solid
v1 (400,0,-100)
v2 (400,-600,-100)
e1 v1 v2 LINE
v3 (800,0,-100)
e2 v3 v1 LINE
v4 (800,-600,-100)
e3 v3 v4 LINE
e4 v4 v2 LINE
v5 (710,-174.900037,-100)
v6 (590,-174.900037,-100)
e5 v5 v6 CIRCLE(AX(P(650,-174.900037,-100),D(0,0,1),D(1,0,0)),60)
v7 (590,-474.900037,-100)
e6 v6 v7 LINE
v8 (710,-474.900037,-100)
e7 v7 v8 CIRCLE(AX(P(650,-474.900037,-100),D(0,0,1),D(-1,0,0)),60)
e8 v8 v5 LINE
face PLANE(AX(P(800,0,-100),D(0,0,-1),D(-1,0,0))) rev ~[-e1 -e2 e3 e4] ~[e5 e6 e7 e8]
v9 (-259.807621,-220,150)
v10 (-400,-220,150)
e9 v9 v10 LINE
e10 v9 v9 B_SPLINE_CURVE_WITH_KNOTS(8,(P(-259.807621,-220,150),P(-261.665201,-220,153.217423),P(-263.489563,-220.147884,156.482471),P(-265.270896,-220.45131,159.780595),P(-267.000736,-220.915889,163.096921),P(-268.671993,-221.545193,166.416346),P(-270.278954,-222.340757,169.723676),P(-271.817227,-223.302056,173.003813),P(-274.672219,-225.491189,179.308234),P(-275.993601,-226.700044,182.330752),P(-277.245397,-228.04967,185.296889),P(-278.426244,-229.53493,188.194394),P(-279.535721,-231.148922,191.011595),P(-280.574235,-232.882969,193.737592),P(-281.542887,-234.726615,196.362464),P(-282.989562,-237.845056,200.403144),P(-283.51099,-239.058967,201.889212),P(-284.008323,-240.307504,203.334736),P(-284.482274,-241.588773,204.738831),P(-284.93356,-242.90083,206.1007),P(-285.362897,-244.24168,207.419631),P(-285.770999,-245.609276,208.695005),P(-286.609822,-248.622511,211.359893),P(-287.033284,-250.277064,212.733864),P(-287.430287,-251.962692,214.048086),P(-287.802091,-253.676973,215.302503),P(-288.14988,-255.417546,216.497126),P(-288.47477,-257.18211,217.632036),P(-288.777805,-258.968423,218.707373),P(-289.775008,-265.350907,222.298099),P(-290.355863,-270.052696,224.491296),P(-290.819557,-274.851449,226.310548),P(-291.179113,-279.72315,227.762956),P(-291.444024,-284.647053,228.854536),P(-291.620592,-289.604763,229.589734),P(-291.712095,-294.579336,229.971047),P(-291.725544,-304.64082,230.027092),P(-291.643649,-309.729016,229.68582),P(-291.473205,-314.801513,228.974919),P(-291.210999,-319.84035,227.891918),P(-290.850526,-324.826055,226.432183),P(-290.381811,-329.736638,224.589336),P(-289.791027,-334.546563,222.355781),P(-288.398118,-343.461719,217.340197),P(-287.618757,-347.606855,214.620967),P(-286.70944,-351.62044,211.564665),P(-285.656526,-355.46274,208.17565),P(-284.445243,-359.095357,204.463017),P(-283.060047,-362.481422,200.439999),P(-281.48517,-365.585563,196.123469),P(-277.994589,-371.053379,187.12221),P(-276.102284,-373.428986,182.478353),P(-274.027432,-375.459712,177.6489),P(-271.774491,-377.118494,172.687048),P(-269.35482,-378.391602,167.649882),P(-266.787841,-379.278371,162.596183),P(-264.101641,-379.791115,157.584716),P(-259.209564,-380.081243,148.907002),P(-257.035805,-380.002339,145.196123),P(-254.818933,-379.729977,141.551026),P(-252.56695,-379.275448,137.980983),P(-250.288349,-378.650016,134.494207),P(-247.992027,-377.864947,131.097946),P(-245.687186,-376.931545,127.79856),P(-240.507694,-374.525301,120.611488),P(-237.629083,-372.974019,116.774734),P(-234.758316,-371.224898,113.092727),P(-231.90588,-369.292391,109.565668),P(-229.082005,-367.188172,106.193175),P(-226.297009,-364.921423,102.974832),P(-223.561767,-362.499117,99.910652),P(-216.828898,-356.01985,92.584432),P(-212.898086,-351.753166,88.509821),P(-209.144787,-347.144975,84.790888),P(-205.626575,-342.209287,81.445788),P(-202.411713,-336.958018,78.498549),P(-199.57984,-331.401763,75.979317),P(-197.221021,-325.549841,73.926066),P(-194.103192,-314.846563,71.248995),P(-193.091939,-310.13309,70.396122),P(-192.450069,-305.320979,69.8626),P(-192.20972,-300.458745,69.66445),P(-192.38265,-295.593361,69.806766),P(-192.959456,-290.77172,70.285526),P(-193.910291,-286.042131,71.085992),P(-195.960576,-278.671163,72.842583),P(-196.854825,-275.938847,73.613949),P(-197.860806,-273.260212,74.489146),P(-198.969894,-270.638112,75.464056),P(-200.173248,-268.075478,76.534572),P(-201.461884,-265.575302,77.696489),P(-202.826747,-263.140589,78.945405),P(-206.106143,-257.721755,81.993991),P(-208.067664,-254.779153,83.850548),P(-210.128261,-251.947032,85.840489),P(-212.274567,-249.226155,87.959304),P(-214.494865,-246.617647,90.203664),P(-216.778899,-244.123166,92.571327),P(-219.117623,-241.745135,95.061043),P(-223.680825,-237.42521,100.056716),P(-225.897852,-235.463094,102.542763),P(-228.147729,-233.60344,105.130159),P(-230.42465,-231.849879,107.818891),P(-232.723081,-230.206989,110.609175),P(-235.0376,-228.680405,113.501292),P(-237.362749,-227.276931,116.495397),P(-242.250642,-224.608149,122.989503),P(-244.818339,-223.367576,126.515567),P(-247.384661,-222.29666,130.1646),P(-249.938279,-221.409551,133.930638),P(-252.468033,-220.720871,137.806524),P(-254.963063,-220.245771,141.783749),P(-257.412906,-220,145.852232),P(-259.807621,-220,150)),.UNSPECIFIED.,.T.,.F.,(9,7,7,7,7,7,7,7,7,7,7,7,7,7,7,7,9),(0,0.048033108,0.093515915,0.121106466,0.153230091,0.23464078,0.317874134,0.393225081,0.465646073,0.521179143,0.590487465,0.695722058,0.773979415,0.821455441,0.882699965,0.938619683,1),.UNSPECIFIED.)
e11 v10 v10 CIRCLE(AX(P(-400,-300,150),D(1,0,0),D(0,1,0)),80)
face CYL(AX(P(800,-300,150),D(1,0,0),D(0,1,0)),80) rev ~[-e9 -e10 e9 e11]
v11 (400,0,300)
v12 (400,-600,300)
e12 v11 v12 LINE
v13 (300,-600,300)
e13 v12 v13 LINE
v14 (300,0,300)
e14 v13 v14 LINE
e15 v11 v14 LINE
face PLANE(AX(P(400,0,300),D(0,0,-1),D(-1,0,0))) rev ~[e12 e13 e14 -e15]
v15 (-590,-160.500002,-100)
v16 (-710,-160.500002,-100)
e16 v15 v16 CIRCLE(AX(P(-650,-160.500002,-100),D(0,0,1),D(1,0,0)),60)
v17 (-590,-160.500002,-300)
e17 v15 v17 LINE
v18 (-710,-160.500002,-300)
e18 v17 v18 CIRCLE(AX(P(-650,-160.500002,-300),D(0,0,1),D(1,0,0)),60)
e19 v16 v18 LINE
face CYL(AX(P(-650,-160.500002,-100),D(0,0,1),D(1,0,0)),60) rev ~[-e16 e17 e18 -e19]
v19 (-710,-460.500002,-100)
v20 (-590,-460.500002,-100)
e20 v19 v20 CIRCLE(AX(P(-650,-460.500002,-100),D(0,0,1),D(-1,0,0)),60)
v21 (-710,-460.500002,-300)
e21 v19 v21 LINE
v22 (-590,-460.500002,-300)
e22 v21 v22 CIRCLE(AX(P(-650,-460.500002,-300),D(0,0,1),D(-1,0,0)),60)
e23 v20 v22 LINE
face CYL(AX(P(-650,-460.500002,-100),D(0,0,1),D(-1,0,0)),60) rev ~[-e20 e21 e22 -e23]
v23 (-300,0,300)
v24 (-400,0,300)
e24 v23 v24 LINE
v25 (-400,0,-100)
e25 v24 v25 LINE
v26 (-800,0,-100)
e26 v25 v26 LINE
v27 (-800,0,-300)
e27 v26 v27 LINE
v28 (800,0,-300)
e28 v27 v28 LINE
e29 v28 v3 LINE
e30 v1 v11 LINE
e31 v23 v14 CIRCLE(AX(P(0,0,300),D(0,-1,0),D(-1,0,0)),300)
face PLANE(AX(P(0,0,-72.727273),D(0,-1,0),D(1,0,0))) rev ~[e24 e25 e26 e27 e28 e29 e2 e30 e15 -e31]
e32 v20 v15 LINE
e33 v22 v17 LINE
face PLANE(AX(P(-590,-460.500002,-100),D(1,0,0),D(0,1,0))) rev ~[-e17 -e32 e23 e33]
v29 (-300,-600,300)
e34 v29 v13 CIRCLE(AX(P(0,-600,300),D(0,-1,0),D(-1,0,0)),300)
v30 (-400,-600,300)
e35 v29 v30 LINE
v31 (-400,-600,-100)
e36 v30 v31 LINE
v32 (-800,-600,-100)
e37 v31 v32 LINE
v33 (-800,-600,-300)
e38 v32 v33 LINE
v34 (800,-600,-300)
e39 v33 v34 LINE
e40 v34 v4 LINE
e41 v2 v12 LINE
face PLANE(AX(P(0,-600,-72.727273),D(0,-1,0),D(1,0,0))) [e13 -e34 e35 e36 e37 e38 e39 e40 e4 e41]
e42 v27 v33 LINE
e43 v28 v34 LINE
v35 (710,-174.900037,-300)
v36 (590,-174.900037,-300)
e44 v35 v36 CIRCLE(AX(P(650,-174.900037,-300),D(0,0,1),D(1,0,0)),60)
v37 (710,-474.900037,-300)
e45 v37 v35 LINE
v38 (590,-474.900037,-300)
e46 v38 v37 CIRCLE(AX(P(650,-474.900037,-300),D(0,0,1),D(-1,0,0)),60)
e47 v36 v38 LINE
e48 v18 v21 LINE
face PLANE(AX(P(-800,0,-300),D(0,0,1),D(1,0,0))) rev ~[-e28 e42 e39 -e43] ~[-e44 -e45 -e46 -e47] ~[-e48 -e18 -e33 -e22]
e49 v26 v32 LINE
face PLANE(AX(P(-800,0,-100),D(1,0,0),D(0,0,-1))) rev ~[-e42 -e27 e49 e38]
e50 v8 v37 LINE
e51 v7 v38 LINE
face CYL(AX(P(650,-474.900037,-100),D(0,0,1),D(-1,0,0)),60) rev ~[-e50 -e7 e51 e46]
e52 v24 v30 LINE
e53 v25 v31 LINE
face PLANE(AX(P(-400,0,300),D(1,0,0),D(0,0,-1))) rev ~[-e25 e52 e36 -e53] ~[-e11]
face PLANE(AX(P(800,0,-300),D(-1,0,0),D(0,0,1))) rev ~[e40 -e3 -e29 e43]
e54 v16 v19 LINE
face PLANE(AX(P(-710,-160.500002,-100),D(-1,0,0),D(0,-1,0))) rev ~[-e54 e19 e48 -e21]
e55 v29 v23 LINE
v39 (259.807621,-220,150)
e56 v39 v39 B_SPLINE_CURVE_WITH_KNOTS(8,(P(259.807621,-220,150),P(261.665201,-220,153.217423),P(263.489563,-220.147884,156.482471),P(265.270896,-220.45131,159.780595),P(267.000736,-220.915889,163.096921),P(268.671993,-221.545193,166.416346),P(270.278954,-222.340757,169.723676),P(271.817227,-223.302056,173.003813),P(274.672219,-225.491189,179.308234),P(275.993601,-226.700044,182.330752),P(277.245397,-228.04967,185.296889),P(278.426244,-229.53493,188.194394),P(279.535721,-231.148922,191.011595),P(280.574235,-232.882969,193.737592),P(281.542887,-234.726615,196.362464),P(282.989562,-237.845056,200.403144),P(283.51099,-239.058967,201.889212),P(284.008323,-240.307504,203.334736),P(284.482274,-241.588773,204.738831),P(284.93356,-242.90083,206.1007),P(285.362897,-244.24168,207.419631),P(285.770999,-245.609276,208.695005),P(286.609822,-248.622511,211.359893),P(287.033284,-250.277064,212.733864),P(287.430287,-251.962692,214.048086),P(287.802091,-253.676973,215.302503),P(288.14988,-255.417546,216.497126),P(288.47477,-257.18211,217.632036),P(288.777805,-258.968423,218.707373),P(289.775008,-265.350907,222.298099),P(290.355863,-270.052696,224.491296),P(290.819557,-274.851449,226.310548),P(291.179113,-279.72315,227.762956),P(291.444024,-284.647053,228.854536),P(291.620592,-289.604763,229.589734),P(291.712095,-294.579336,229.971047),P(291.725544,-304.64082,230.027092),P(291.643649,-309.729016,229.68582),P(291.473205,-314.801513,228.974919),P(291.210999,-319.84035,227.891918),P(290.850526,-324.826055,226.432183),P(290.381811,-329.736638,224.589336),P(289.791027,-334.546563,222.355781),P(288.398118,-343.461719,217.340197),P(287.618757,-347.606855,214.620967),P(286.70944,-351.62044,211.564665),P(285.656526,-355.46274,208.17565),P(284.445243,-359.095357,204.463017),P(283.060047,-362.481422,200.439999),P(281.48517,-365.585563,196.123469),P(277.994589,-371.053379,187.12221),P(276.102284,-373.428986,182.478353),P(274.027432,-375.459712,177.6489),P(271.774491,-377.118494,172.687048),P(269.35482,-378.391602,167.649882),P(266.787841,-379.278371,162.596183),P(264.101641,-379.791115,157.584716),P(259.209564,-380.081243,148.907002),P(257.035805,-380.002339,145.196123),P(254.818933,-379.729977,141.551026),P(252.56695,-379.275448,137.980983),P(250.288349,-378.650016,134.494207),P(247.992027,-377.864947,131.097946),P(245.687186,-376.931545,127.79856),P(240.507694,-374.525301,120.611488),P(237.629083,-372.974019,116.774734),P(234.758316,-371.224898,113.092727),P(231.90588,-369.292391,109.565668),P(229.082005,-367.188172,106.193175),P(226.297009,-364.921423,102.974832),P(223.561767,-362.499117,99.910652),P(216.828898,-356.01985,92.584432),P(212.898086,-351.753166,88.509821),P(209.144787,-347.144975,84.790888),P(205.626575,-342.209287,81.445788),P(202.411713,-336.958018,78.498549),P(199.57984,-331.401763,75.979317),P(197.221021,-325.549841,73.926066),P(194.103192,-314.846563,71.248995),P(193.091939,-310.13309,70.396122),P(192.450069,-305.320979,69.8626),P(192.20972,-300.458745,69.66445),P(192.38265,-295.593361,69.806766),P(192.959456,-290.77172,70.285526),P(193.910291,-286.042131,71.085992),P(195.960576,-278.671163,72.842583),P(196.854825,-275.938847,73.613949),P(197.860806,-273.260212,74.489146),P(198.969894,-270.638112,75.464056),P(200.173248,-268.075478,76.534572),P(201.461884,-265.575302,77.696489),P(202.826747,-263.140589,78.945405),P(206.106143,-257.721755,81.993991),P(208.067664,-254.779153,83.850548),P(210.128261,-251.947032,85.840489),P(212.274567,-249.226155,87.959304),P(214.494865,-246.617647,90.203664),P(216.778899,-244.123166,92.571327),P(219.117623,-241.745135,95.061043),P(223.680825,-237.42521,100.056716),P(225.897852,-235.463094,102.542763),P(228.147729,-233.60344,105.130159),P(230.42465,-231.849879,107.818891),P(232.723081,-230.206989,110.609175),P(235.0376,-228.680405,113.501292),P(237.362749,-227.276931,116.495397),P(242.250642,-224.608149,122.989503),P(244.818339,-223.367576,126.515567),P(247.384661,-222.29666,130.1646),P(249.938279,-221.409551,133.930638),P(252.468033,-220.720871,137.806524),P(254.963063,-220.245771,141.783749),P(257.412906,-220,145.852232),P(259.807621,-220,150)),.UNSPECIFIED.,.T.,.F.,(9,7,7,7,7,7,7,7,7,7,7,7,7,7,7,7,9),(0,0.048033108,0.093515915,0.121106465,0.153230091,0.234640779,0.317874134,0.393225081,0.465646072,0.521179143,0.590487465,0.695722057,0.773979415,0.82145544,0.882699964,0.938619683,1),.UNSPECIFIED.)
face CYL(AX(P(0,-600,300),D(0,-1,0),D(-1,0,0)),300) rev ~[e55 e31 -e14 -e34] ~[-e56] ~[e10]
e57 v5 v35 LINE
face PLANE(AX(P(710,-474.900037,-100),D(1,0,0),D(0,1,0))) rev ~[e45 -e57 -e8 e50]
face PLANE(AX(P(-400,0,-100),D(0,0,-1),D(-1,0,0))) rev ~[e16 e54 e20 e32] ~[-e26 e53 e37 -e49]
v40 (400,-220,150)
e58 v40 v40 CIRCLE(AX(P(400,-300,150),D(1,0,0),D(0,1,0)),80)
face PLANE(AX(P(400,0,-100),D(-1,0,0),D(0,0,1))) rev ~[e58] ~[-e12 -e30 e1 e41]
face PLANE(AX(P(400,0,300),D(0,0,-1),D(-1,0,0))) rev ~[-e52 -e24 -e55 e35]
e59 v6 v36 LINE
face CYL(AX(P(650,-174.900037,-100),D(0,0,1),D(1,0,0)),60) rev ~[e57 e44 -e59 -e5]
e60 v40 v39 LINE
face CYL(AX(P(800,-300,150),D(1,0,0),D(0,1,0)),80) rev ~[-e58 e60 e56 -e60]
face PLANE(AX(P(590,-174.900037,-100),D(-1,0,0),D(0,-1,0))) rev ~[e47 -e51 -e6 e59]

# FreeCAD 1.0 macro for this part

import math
import FreeCAD as App
import Part
import Sketcher


def add_polygon(sketch, points):
    """Adds a closed chain of lines whose ends are joined by coincident constraints."""
    first, n = sketch.GeometryCount, len(points)
    for a, b in zip(points, points[1:] + points[:1]):
        sketch.addGeometry(Part.LineSegment(App.Vector(*a, 0), App.Vector(*b, 0)), False)
    for i in range(n):
        sketch.addConstraint(Sketcher.Constraint("Coincident", first + i, 2, first + (i + 1) % n, 1))

doc = App.newDocument("Part")
params = doc.addObject("Spreadsheet::Sheet", "Params")
for row, (alias, value) in enumerate([
    ("sketch1_width", "1600 mm"),
    ("sketch1_width2", "400 mm"),
    ("sketch1_height", "200 mm"),
    ("pad1_length", "600 mm"),
    ("sketch2_radius", "300 mm"),
    ("sketch3_diameter", "160 mm"),
    ("sketch4_radius", "60 mm"),
    ("sketch4_height", "300 mm"),
], start=1):
    params.set(f"A{row}", alias)
    params.set(f"B{row}", "=" + value)
    params.setAlias(f"B{row}", alias)

body = doc.addObject("PartDesign::Body", "Body")

# Sketch on XZ plane
sketch1 = doc.addObject("Sketcher::SketchObject", "Sketch")
body.addObject(sketch1)
sketch1.AttachmentSupport = (doc.XZ_Plane, [""])
sketch1.MapMode = "FlatFace"
add_polygon(sketch1, [(-800, -100), (-800, -300), (800, -300), (800, -100), (400, -100), (400, 300), (-400, 300), (-400, -100)])  # lines 0-7
sketch1.addConstraint([
    Sketcher.Constraint("Vertical", 0),
    Sketcher.Constraint("Horizontal", 1),
    Sketcher.Constraint("Vertical", 2),
    Sketcher.Constraint("Horizontal", 3),
    Sketcher.Constraint("Vertical", 4),
    Sketcher.Constraint("Horizontal", 5),
    Sketcher.Constraint("Vertical", 6),
    Sketcher.Constraint("Horizontal", 7),
    Sketcher.Constraint("Symmetric", 3, 2, 6, 2, -2),
    Sketcher.Constraint("Equal", 3, 7),
    Sketcher.Constraint("Equal", 7, 4),
    Sketcher.Constraint("DistanceX", 1, 1, 1, 2, 1600.0),
    Sketcher.Constraint("DistanceX", 3, 2, 3, 1, 400.0),
    Sketcher.Constraint("DistanceY", 0, 2, 0, 1, 200.0),
    Sketcher.Constraint("DistanceY", 0, 2, -1, 1, 300.0),
])
sketch1.setExpression("Constraints[19]", "Params.sketch1_width")
sketch1.setExpression("Constraints[20]", "Params.sketch1_width2")
sketch1.setExpression("Constraints[21]", "Params.sketch1_height")
pad1 = doc.addObject("PartDesign::Pad", "Pad")
body.addObject(pad1)
pad1.Profile = sketch1
pad1.setExpression("Length", "Params.pad1_length")

# Sketch on XZ plane
sketch2 = doc.addObject("Sketcher::SketchObject", "Sketch001")
body.addObject(sketch2)
sketch2.AttachmentSupport = (doc.XZ_Plane, [""])
sketch2.MapMode = "FlatFace"
sketch2.AttachmentOffset = App.Placement(App.Vector(0, 0, 600), App.Rotation())
sketch2.addGeometry([
    Part.LineSegment(App.Vector(300, 300, 0), App.Vector(-300, 300, 0)),
    Part.ArcOfCircle(Part.Circle(App.Vector(0, 300, 0), App.Vector(0, 0, 1), 300), math.radians(180), math.radians(360)),
], False)
sketch2.addConstraint([
    Sketcher.Constraint("Coincident", 0, 1, 1, 2),
    Sketcher.Constraint("Coincident", 1, 1, 0, 2),
    Sketcher.Constraint("Horizontal", 0),
    Sketcher.Constraint("PointOnObject", 1, 3, -2),
    Sketcher.Constraint("Horizontal", 1, 3, 0, 1),
    Sketcher.Constraint("Radius", 1, 300.0),
    Sketcher.Constraint("DistanceY", -1, 1, 1, 3, 300.0),
])
sketch2.setExpression("Constraints[5]", "Params.sketch2_radius")
pocket1 = doc.addObject("PartDesign::Pocket", "Pocket")
body.addObject(pocket1)
pocket1.Profile = sketch2
pocket1.Type = "ThroughAll"

# Sketch on YZ plane
sketch3 = doc.addObject("Sketcher::SketchObject", "Sketch002")
body.addObject(sketch3)
sketch3.AttachmentSupport = (doc.YZ_Plane, [""])
sketch3.MapMode = "FlatFace"
sketch3.AttachmentOffset = App.Placement(App.Vector(0, 0, 800), App.Rotation())
sketch3.addGeometry(Part.Circle(App.Vector(-300, 150, 0), App.Vector(0, 0, 1), 80), False)
sketch3.addConstraint([
    Sketcher.Constraint("Diameter", 0, 160.0),
    Sketcher.Constraint("DistanceX", 0, 3, -1, 1, 300.0),
    Sketcher.Constraint("DistanceY", -1, 1, 0, 3, 150.0),
])
sketch3.setExpression("Constraints[0]", "Params.sketch3_diameter")
pocket2 = doc.addObject("PartDesign::Pocket", "Pocket001")
body.addObject(pocket2)
pocket2.Profile = sketch3
pocket2.Type = "ThroughAll"

# Sketch on XY plane
sketch4 = doc.addObject("Sketcher::SketchObject", "Sketch003")
body.addObject(sketch4)
sketch4.AttachmentSupport = (doc.XY_Plane, [""])
sketch4.MapMode = "FlatFace"
sketch4.AttachmentOffset = App.Placement(App.Vector(0, 0, -100), App.Rotation())
sketch4.addGeometry([
    Part.LineSegment(App.Vector(590, -175, 0), App.Vector(590, -475, 0)),  # 0
    Part.ArcOfCircle(Part.Circle(App.Vector(650, -475, 0), App.Vector(0, 0, 1), 60), math.radians(180), math.radians(360)),  # 1
    Part.LineSegment(App.Vector(710, -475, 0), App.Vector(710, -175, 0)),  # 2
    Part.ArcOfCircle(Part.Circle(App.Vector(650, -175, 0), App.Vector(0, 0, 1), 60), math.radians(0), math.radians(180)),  # 3
    Part.LineSegment(App.Vector(-710, -161, 0), App.Vector(-710, -461, 0)),  # 4
    Part.ArcOfCircle(Part.Circle(App.Vector(-650, -461, 0), App.Vector(0, 0, 1), 60), math.radians(180), math.radians(360)),  # 5
    Part.LineSegment(App.Vector(-590, -461, 0), App.Vector(-590, -161, 0)),  # 6
    Part.ArcOfCircle(Part.Circle(App.Vector(-650, -161, 0), App.Vector(0, 0, 1), 60), math.radians(0), math.radians(180)),  # 7
], False)
sketch4.addConstraint([
    Sketcher.Constraint("Tangent", 0, 2, 1, 1),
    Sketcher.Constraint("Tangent", 1, 2, 2, 1),
    Sketcher.Constraint("Tangent", 2, 2, 3, 1),
    Sketcher.Constraint("Tangent", 3, 2, 0, 1),
    Sketcher.Constraint("Tangent", 4, 2, 5, 1),
    Sketcher.Constraint("Tangent", 5, 2, 6, 1),
    Sketcher.Constraint("Tangent", 6, 2, 7, 1),
    Sketcher.Constraint("Tangent", 7, 2, 4, 1),
    Sketcher.Constraint("Vertical", 0),
    Sketcher.Constraint("Vertical", 2),
    Sketcher.Constraint("Vertical", 4),
    Sketcher.Constraint("Vertical", 6),
    Sketcher.Constraint("Equal", 3, 5),
    Sketcher.Constraint("Equal", 2, 4),
    Sketcher.Constraint("Radius", 1, 60.0),
    Sketcher.Constraint("DistanceY", 0, 2, 0, 1, 300.0),
    Sketcher.Constraint("DistanceX", -1, 1, 1, 3, 650.0),
    Sketcher.Constraint("DistanceX", 5, 3, -1, 1, 650.0),
    Sketcher.Constraint("DistanceY", 5, 3, -1, 1, 460.500002),
    Sketcher.Constraint("DistanceY", 1, 3, -1, 1, 474.900037),
])
sketch4.setExpression("Constraints[14]", "Params.sketch4_radius")
sketch4.setExpression("Constraints[15]", "Params.sketch4_height")
pocket3 = doc.addObject("PartDesign::Pocket", "Pocket002")
body.addObject(pocket3)
pocket3.Profile = sketch4
pocket3.Type = "ThroughAll"

doc.recompute()
